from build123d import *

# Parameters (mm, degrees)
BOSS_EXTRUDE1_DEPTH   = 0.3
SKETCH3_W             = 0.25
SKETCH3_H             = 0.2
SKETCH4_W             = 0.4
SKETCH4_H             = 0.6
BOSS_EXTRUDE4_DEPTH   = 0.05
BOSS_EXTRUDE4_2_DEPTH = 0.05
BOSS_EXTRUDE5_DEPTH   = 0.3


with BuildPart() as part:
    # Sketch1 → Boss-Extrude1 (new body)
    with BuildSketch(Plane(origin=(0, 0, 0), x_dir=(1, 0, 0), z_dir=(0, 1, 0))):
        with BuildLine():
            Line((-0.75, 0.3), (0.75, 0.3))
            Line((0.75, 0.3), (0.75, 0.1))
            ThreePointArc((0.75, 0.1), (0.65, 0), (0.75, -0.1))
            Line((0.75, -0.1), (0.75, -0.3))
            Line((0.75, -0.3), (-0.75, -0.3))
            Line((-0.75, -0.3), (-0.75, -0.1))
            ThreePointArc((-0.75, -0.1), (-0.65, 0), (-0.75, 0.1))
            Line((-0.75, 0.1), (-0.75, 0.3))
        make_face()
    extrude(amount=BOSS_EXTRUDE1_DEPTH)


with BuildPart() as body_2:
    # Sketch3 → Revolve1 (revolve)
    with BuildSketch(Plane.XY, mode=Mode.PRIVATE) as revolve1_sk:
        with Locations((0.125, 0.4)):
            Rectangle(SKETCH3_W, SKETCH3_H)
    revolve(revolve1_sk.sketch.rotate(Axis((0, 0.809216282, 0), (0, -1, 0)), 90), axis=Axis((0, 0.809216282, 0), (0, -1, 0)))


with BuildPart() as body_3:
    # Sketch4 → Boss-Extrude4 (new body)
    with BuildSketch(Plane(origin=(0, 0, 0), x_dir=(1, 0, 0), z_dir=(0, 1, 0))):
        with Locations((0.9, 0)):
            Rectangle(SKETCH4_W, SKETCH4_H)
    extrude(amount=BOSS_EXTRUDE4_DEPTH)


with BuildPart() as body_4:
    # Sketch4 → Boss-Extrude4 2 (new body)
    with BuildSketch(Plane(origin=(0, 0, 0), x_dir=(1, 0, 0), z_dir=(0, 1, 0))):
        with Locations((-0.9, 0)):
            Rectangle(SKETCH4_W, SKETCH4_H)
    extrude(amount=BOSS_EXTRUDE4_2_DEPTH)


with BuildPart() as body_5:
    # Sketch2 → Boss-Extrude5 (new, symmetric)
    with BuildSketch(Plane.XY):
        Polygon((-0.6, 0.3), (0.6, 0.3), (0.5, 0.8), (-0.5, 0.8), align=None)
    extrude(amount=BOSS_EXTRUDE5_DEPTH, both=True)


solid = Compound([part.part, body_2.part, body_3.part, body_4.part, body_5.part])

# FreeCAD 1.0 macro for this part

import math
import FreeCAD as App
import Part
import Sketcher


def add_polygon(sketch, points):
    """Adds a closed chain of lines whose ends are joined by coincident constraints."""
    first, n = sketch.GeometryCount, len(points)
    for a, b in zip(points, points[1:] + points[:1]):
        sketch.addGeometry(Part.LineSegment(App.Vector(*a, 0), App.Vector(*b, 0)), False)
    for i in range(n):
        sketch.addConstraint(Sketcher.Constraint("Coincident", first + i, 2, first + (i + 1) % n, 1))

doc = App.newDocument("Part")
body = doc.addObject("PartDesign::Body", "Body")

sketch1 = doc.addObject("Sketcher::SketchObject", "Sketch")
body.addObject(sketch1)
sketch1.AttachmentSupport = (doc.XZ_Plane, [""])
sketch1.MapMode = "FlatFace"
sketch1.addGeometry([
    Part.LineSegment(App.Vector(0.75, -0.3, 0), App.Vector(-0.75, -0.3, 0)),
    Part.LineSegment(App.Vector(-0.75, -0.3, 0), App.Vector(-0.75, -0.1, 0)),
    Part.ArcOfCircle(Part.Circle(App.Vector(-0.75, 0, 0), App.Vector(0, 0, 1), 0.1), math.radians(-90), math.radians(90)),
    Part.LineSegment(App.Vector(-0.75, 0.1, 0), App.Vector(-0.75, 0.3, 0)),
    Part.LineSegment(App.Vector(-0.75, 0.3, 0), App.Vector(0.75, 0.3, 0)),
    Part.LineSegment(App.Vector(0.75, 0.3, 0), App.Vector(0.75, 0.1, 0)),
    Part.ArcOfCircle(Part.Circle(App.Vector(0.75, 0, 0), App.Vector(0, 0, 1), 0.1), math.radians(90), math.radians(270)),
    Part.LineSegment(App.Vector(0.75, -0.1, 0), App.Vector(0.75, -0.3, 0)),
], False)
sketch1.addConstraint([
    Sketcher.Constraint("Coincident", 0, 2, 1, 1),
    Sketcher.Constraint("Coincident", 1, 2, 2, 1),
    Sketcher.Constraint("Coincident", 2, 2, 3, 1),
    Sketcher.Constraint("Coincident", 3, 2, 4, 1),
    Sketcher.Constraint("Coincident", 4, 2, 5, 1),
    Sketcher.Constraint("Coincident", 5, 2, 6, 1),
    Sketcher.Constraint("Coincident", 6, 2, 7, 1),
    Sketcher.Constraint("Coincident", 7, 2, 0, 1),
    Sketcher.Constraint("Horizontal", 0),
    Sketcher.Constraint("Vertical", 1),
    Sketcher.Constraint("Vertical", 3),
    Sketcher.Constraint("Horizontal", 4),
    Sketcher.Constraint("Vertical", 5),
    Sketcher.Constraint("Vertical", 7),
    Sketcher.Constraint("Equal", 2, 6),
    Sketcher.Constraint("Symmetric", 2, 3, 6, 3, -1, 1),
    Sketcher.Constraint("Symmetric", 0, 2, 4, 2, -1, 1),
    Sketcher.Constraint("Symmetric", 2, 2, 5, 2, -2),
    Sketcher.Constraint("Vertical", 2, 3, 0, 2),
    Sketcher.Constraint("Vertical", 5, 2, 6, 2),
    Sketcher.Constraint("Radius", 2, 0.1),
    Sketcher.Constraint("DistanceX", 0, 2, 0, 1, 1.5),
    Sketcher.Constraint("DistanceY", 1, 1, 1, 2, 0.2),
])
pad1 = doc.addObject("PartDesign::Pad", "Pad")
body.addObject(pad1)
pad1.Profile = sketch1
pad1.Length = 0.3
pad1.Reversed = True
body2 = doc.addObject("PartDesign::Body", "Body001")

sketch2 = doc.addObject("Sketcher::SketchObject", "Sketch001")
body2.addObject(sketch2)
sketch2.AttachmentSupport = (doc.getObject("XY_Plane001"), [""])
sketch2.MapMode = "FlatFace"
add_polygon(sketch2, [(0, 0.5), (0, 0.3), (0.25, 0.3), (0.25, 0.5)])
sketch2.addConstraint([
    Sketcher.Constraint("Vertical", 0),
    Sketcher.Constraint("Horizontal", 1),
    Sketcher.Constraint("Vertical", 2),
    Sketcher.Constraint("Horizontal", 3),
    Sketcher.Constraint("PointOnObject", 0, 2, -2),
    Sketcher.Constraint("DistanceY", 0, 2, 0, 1, 0.2),
    Sketcher.Constraint("DistanceX", 1, 1, 1, 2, 0.25),
    Sketcher.Constraint("DistanceY", -1, 1, 0, 2, 0.3),
])
revolution = doc.addObject("PartDesign::Revolution", "Revolution")
body2.addObject(revolution)
revolution.Profile = sketch2
revolution.ReferenceAxis = (sketch2, ["V_Axis"])
revolution.Angle = 360
body3 = doc.addObject("PartDesign::Body", "Body002")

sketch3 = doc.addObject("Sketcher::SketchObject", "Sketch002")
body3.addObject(sketch3)
sketch3.AttachmentSupport = (doc.getObject("XZ_Plane002"), [""])
sketch3.MapMode = "FlatFace"
add_polygon(sketch3, [(0.7, -0.3), (0.7, 0.3), (1.1, 0.3), (1.1, -0.3)])
sketch3.addConstraint([
    Sketcher.Constraint("Vertical", 0),
    Sketcher.Constraint("Horizontal", 1),
    Sketcher.Constraint("Vertical", 2),
    Sketcher.Constraint("Horizontal", 3),
    Sketcher.Constraint("DistanceX", 1, 1, 1, 2, 0.4),
    Sketcher.Constraint("DistanceY", 0, 1, 0, 2, 0.6),
    Sketcher.Constraint("DistanceX", -1, 1, 0, 2, 0.7),
    Sketcher.Constraint("DistanceY", -1, 1, 0, 2, 0.3),
])
pad2 = doc.addObject("PartDesign::Pad", "Pad001")
body3.addObject(pad2)
pad2.Profile = sketch3
pad2.Length = 0.05
pad2.Reversed = True
body4 = doc.addObject("PartDesign::Body", "Body003")

sketch4 = doc.addObject("Sketcher::SketchObject", "Sketch003")
body4.addObject(sketch4)
sketch4.AttachmentSupport = (doc.getObject("XZ_Plane003"), [""])
sketch4.MapMode = "FlatFace"
add_polygon(sketch4, [(-1.1, -0.3), (-1.1, 0.3), (-0.7, 0.3), (-0.7, -0.3)])
sketch4.addConstraint([
    Sketcher.Constraint("Vertical", 0),
    Sketcher.Constraint("Horizontal", 1),
    Sketcher.Constraint("Vertical", 2),
    Sketcher.Constraint("Horizontal", 3),
    Sketcher.Constraint("DistanceX", 1, 1, 1, 2, 0.4),
    Sketcher.Constraint("DistanceY", 0, 1, 0, 2, 0.6),
    Sketcher.Constraint("DistanceX", 0, 2, -1, 1, 1.1),
    Sketcher.Constraint("DistanceY", -1, 1, 0, 2, 0.3),
])
pad3 = doc.addObject("PartDesign::Pad", "Pad002")
body4.addObject(pad3)
pad3.Profile = sketch4
pad3.Length = 0.05
pad3.Reversed = True
body5 = doc.addObject("PartDesign::Body", "Body004")

sketch5 = doc.addObject("Sketcher::SketchObject", "Sketch004")
body5.addObject(sketch5)
sketch5.AttachmentSupport = (doc.getObject("XY_Plane004"), [""])
sketch5.MapMode = "FlatFace"
add_polygon(sketch5, [(-0.6, 0.3), (0.6, 0.3), (0.5, 0.8), (-0.5, 0.8)])
sketch5.addConstraint([
    Sketcher.Constraint("Horizontal", 0),
    Sketcher.Constraint("Horizontal", 2),
    Sketcher.Constraint("Equal", 1, 3),
    Sketcher.Constraint("DistanceX", 2, 2, 2, 1, 1.0),
    Sketcher.Constraint("DistanceX", 0, 1, 0, 2, 1.2),
    Sketcher.Constraint("DistanceX", -1, 1, 0, 2, 0.6),
    Sketcher.Constraint("DistanceY", -1, 1, 0, 2, 0.3),
    Sketcher.Constraint("DistanceY", -1, 1, 1, 2, 0.8),
])
pad4 = doc.addObject("PartDesign::Pad", "Pad003")
body5.addObject(pad4)
pad4.Profile = sketch5
pad4.Length = 0.6
pad4.Midplane = True

doc.recompute()
